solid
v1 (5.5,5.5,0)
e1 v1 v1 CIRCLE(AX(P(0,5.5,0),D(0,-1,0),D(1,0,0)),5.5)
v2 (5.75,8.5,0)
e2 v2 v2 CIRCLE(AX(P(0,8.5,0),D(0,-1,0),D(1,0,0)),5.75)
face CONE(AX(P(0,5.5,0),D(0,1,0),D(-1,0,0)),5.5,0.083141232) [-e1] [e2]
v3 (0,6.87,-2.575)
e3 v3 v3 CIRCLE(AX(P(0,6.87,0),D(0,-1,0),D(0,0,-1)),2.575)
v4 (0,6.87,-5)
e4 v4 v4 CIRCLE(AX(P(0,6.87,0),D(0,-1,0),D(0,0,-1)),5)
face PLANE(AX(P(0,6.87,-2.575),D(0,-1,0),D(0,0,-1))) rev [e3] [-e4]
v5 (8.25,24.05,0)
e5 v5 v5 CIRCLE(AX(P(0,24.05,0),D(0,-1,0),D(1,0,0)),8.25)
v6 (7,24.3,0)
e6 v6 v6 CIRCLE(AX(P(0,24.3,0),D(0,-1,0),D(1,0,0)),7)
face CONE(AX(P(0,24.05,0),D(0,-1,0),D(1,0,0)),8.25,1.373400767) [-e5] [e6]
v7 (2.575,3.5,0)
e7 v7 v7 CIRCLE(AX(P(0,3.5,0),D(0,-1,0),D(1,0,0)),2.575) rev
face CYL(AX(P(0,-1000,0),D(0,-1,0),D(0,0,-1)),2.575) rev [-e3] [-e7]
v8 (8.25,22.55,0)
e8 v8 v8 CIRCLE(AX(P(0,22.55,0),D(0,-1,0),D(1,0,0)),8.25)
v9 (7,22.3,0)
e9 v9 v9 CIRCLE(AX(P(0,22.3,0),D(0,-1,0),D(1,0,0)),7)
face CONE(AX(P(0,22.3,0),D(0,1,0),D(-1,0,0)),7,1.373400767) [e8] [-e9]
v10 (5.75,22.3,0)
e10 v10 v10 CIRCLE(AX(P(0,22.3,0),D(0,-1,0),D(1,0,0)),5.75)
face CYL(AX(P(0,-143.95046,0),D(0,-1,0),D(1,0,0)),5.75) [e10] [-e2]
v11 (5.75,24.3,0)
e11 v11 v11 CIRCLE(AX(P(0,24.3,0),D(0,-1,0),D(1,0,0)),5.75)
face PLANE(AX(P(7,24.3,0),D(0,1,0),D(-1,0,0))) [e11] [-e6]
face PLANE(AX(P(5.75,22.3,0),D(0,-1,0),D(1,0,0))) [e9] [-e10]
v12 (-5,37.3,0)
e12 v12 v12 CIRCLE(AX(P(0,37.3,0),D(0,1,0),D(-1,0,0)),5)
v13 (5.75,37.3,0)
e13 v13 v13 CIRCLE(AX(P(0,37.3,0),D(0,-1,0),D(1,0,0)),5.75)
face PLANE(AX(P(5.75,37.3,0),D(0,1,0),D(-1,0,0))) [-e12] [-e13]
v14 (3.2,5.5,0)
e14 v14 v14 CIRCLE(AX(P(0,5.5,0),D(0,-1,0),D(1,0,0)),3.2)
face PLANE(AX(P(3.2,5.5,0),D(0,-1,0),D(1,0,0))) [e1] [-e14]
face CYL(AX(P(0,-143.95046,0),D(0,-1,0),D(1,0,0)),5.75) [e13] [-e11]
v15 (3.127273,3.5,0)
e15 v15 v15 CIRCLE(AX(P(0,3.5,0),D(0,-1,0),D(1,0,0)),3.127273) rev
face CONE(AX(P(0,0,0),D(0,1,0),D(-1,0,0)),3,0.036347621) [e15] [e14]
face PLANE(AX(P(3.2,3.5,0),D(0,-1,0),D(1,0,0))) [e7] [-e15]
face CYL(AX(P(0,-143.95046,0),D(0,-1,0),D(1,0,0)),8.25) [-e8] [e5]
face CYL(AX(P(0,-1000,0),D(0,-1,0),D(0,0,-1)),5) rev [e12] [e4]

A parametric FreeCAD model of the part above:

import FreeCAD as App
import Part
import Sketcher

V = App.Vector
Q = App.Units.Quantity

doc = App.newDocument("Part")
body = doc.addObject("PartDesign::Body", "Body")

sketch1 = body.newObject("Sketcher::SketchObject", "Sketch")
sketch1.AttachmentSupport = (doc.getObject("XY_Plane"), [""])
sketch1.MapMode = "FlatFace"
sketch1.addGeometry(Part.LineSegment(V(0, 0, 0), V(3, 0, 0)), False)
sketch1.addGeometry(Part.LineSegment(V(3, 0, 0), V(3.2, 5.5, 0)), False)
sketch1.addGeometry(Part.LineSegment(V(3.2, 5.5, 0), V(5.5, 5.5, 0)), False)
sketch1.addGeometry(Part.LineSegment(V(5.5, 5.5, 0), V(5.8, 8.5, 0)), False)
sketch1.addGeometry(Part.LineSegment(V(5.8, 8.5, 0), V(5.8, 22.3, 0)), False)
sketch1.addGeometry(Part.LineSegment(V(5.8, 22.3, 0), V(7, 22.3, 0)), False)
sketch1.addGeometry(Part.LineSegment(V(7, 22.3, 0), V(8.2, 22.6, 0)), False)
sketch1.addGeometry(Part.LineSegment(V(8.2, 22.6, 0), V(8.2, 24.1, 0)), False)
sketch1.addGeometry(Part.LineSegment(V(8.2, 24.1, 0), V(7, 24.3, 0)), False)
sketch1.addGeometry(Part.LineSegment(V(7, 24.3, 0), V(5.8, 24.3, 0)), False)
sketch1.addGeometry(Part.LineSegment(V(5.8, 24.3, 0), V(5.8, 37.3, 0)), False)
sketch1.addGeometry(Part.LineSegment(V(5.8, 37.3, 0), V(0, 37.3, 0)), False)
sketch1.addGeometry(Part.LineSegment(V(0, 37.3, 0), V(0, 0, 0)), False)
sketch1.addConstraint(Sketcher.Constraint("Coincident", 0, 2, 1, 1))
sketch1.addConstraint(Sketcher.Constraint("Coincident", 1, 2, 2, 1))
sketch1.addConstraint(Sketcher.Constraint("Coincident", 2, 2, 3, 1))
sketch1.addConstraint(Sketcher.Constraint("Coincident", 3, 2, 4, 1))
sketch1.addConstraint(Sketcher.Constraint("Coincident", 4, 2, 5, 1))
sketch1.addConstraint(Sketcher.Constraint("Coincident", 5, 2, 6, 1))
sketch1.addConstraint(Sketcher.Constraint("Coincident", 6, 2, 7, 1))
sketch1.addConstraint(Sketcher.Constraint("Coincident", 7, 2, 8, 1))
sketch1.addConstraint(Sketcher.Constraint("Coincident", 8, 2, 9, 1))
sketch1.addConstraint(Sketcher.Constraint("Coincident", 9, 2, 10, 1))
sketch1.addConstraint(Sketcher.Constraint("Coincident", 10, 2, 11, 1))
sketch1.addConstraint(Sketcher.Constraint("Coincident", 11, 2, 12, 1))
sketch1.addConstraint(Sketcher.Constraint("Coincident", 12, 2, 0, 1))
sketch1.addConstraint(Sketcher.Constraint("Horizontal", 0))
sketch1.addConstraint(Sketcher.Constraint("Horizontal", 2))
sketch1.addConstraint(Sketcher.Constraint("Vertical", 4))
sketch1.addConstraint(Sketcher.Constraint("Horizontal", 5))
sketch1.addConstraint(Sketcher.Constraint("Vertical", 7))
sketch1.addConstraint(Sketcher.Constraint("Horizontal", 9))
sketch1.addConstraint(Sketcher.Constraint("Vertical", 10))
sketch1.addConstraint(Sketcher.Constraint("Horizontal", 11))
sketch1.addConstraint(Sketcher.Constraint("Vertical", 12))
sketch1.addConstraint(Sketcher.Constraint("Coincident", 12, 2, -1, 1))
sketch1.addConstraint(Sketcher.Constraint("Vertical", 5, 2, 8, 2))
sketch1.addConstraint(Sketcher.Constraint("Vertical", 4, 2, 9, 2))
sketch1.addConstraint(Sketcher.Constraint("Equal", 6, 8))
sketch1.addConstraint(Sketcher.Constraint("DistanceX", 0, 1, 0, 2, Q("3 mm")))
sketch1.addConstraint(Sketcher.Constraint("DistanceY", 10, 1, 10, 2, Q("13 mm")))
sketch1.addConstraint(Sketcher.Constraint("DistanceX", 2, 1, 2, 2, Q("2.3 mm")))
sketch1.addConstraint(Sketcher.Constraint("DistanceY", 4, 1, 4, 2, Q("13.8 mm")))
sketch1.addConstraint(Sketcher.Constraint("DistanceY", 7, 1, 7, 2, Q("1.5 mm")))
sketch1.addConstraint(Sketcher.Constraint("DistanceY", 12, 2, 12, 1, Q("37.3 mm")))
sketch1.addConstraint(Sketcher.Constraint("DistanceX", -1, 1, 5, 2, Q("7 mm")))
sketch1.addConstraint(Sketcher.Constraint("DistanceY", 2, 2, 3, 2, Q("3 mm")))
sketch1.addConstraint(Sketcher.Constraint("DistanceY", 5, 2, 8, 2, Q("2 mm")))
sketch1.addConstraint(Sketcher.Constraint("DistanceX", 5, 1, 5, 2, Q("1.25 mm")))
sketch1.addConstraint(Sketcher.Constraint("DistanceX", -1, 1, 1, 2, Q("3.2 mm")))
sketch1.addConstraint(Sketcher.Constraint("DistanceX", 4, 2, 6, 2, Q("2.5 mm")))
revolution = body.newObject("PartDesign::Revolution", "Revolution")
revolution.Profile = sketch1
revolution.ReferenceAxis = (sketch1, ["V_Axis"])
revolution.Angle = 360

sketch2 = body.newObject("Sketcher::SketchObject", "Sketch001")
sketch2.AttachmentSupport = (doc.getObject("YZ_Plane"), [""])
sketch2.MapMode = "FlatFace"
sketch2.addGeometry(Part.LineSegment(V(-5.6, -0.8, 0), V(-0.4, -0.8, 0)), False)
sketch2.addGeometry(Part.LineSegment(V(-0.4, -0.8, 0), V(-0.4, -2.6, 0)), False)
sketch2.addGeometry(Part.LineSegment(V(-0.4, -2.6, 0), V(6.9, -2.6, 0)), False)
sketch2.addGeometry(Part.LineSegment(V(6.9, -2.6, 0), V(6.9, -5, 0)), False)
sketch2.addGeometry(Part.LineSegment(V(6.9, -5, 0), V(39.2, -5, 0)), False)
sketch2.addGeometry(Part.LineSegment(V(39.2, -5, 0), V(39.2, 0, 0)), False)
sketch2.addGeometry(Part.LineSegment(V(39.2, 0, 0), V(-5.6, 0, 0)), False)
sketch2.addGeometry(Part.LineSegment(V(-5.6, 0, 0), V(-5.6, -0.8, 0)), False)
sketch2.addConstraint(Sketcher.Constraint("Coincident", 0, 2, 1, 1))
sketch2.addConstraint(Sketcher.Constraint("Coincident", 1, 2, 2, 1))
sketch2.addConstraint(Sketcher.Constraint("Coincident", 2, 2, 3, 1))
sketch2.addConstraint(Sketcher.Constraint("Coincident", 3, 2, 4, 1))
sketch2.addConstraint(Sketcher.Constraint("Coincident", 4, 2, 5, 1))
sketch2.addConstraint(Sketcher.Constraint("Coincident", 5, 2, 6, 1))
sketch2.addConstraint(Sketcher.Constraint("Coincident", 6, 2, 7, 1))
sketch2.addConstraint(Sketcher.Constraint("Coincident", 7, 2, 0, 1))
sketch2.addConstraint(Sketcher.Constraint("Horizontal", 0))
sketch2.addConstraint(Sketcher.Constraint("Vertical", 1))
sketch2.addConstraint(Sketcher.Constraint("Horizontal", 2))
sketch2.addConstraint(Sketcher.Constraint("Vertical", 3))
sketch2.addConstraint(Sketcher.Constraint("Horizontal", 4))
sketch2.addConstraint(Sketcher.Constraint("Vertical", 5))
sketch2.addConstraint(Sketcher.Constraint("Horizontal", 6))
sketch2.addConstraint(Sketcher.Constraint("Vertical", 7))
sketch2.addConstraint(Sketcher.Constraint("PointOnObject", 5, 2, -1))
sketch2.addConstraint(Sketcher.Constraint("DistanceY", 5, 1, 5, 2, Q("5 mm")))
sketch2.addConstraint(Sketcher.Constraint("DistanceX", 0, 1, 0, 2, Q("5.2 mm")))
sketch2.addConstraint(Sketcher.Constraint("DistanceX", 2, 1, 2, 2, Q("7.3 mm")))
sketch2.addConstraint(Sketcher.Constraint("DistanceY", 7, 2, 7, 1, Q("0.75 mm")))
sketch2.addConstraint(Sketcher.Constraint("DistanceY", 1, 2, 1, 1, Q("1.825 mm")))
sketch2.addConstraint(Sketcher.Constraint("DistanceX", 0, 2, -1, 1, Q("0.43 mm")))
sketch2.addConstraint(Sketcher.Constraint("DistanceX", 4, 1, 4, 2, Q("32.292157 mm")))
groove = body.newObject("PartDesign::Groove", "Groove")
groove.Profile = sketch2
groove.ReferenceAxis = (sketch2, ["H_Axis"])
groove.Angle = 360

sketch3 = body.newObject("Sketcher::SketchObject", "Sketch002")
sketch3.AttachmentSupport = (doc.getObject("XZ_Plane"), [""])
sketch3.MapMode = "FlatFace"
sketch3.addGeometry(Part.Circle(V(0, 0, 0), V(0, 0, 1), 4.1), False)
sketch3.addConstraint(Sketcher.Constraint("Coincident", 0, 3, -1, 1))
sketch3.addConstraint(Sketcher.Constraint("Diameter", 0, Q("8.175506 mm")))
pocket1 = body.newObject("PartDesign::Pocket", "Pocket")
pocket1.Profile = sketch3
pocket1.Length = 3.5

doc.recompute()
